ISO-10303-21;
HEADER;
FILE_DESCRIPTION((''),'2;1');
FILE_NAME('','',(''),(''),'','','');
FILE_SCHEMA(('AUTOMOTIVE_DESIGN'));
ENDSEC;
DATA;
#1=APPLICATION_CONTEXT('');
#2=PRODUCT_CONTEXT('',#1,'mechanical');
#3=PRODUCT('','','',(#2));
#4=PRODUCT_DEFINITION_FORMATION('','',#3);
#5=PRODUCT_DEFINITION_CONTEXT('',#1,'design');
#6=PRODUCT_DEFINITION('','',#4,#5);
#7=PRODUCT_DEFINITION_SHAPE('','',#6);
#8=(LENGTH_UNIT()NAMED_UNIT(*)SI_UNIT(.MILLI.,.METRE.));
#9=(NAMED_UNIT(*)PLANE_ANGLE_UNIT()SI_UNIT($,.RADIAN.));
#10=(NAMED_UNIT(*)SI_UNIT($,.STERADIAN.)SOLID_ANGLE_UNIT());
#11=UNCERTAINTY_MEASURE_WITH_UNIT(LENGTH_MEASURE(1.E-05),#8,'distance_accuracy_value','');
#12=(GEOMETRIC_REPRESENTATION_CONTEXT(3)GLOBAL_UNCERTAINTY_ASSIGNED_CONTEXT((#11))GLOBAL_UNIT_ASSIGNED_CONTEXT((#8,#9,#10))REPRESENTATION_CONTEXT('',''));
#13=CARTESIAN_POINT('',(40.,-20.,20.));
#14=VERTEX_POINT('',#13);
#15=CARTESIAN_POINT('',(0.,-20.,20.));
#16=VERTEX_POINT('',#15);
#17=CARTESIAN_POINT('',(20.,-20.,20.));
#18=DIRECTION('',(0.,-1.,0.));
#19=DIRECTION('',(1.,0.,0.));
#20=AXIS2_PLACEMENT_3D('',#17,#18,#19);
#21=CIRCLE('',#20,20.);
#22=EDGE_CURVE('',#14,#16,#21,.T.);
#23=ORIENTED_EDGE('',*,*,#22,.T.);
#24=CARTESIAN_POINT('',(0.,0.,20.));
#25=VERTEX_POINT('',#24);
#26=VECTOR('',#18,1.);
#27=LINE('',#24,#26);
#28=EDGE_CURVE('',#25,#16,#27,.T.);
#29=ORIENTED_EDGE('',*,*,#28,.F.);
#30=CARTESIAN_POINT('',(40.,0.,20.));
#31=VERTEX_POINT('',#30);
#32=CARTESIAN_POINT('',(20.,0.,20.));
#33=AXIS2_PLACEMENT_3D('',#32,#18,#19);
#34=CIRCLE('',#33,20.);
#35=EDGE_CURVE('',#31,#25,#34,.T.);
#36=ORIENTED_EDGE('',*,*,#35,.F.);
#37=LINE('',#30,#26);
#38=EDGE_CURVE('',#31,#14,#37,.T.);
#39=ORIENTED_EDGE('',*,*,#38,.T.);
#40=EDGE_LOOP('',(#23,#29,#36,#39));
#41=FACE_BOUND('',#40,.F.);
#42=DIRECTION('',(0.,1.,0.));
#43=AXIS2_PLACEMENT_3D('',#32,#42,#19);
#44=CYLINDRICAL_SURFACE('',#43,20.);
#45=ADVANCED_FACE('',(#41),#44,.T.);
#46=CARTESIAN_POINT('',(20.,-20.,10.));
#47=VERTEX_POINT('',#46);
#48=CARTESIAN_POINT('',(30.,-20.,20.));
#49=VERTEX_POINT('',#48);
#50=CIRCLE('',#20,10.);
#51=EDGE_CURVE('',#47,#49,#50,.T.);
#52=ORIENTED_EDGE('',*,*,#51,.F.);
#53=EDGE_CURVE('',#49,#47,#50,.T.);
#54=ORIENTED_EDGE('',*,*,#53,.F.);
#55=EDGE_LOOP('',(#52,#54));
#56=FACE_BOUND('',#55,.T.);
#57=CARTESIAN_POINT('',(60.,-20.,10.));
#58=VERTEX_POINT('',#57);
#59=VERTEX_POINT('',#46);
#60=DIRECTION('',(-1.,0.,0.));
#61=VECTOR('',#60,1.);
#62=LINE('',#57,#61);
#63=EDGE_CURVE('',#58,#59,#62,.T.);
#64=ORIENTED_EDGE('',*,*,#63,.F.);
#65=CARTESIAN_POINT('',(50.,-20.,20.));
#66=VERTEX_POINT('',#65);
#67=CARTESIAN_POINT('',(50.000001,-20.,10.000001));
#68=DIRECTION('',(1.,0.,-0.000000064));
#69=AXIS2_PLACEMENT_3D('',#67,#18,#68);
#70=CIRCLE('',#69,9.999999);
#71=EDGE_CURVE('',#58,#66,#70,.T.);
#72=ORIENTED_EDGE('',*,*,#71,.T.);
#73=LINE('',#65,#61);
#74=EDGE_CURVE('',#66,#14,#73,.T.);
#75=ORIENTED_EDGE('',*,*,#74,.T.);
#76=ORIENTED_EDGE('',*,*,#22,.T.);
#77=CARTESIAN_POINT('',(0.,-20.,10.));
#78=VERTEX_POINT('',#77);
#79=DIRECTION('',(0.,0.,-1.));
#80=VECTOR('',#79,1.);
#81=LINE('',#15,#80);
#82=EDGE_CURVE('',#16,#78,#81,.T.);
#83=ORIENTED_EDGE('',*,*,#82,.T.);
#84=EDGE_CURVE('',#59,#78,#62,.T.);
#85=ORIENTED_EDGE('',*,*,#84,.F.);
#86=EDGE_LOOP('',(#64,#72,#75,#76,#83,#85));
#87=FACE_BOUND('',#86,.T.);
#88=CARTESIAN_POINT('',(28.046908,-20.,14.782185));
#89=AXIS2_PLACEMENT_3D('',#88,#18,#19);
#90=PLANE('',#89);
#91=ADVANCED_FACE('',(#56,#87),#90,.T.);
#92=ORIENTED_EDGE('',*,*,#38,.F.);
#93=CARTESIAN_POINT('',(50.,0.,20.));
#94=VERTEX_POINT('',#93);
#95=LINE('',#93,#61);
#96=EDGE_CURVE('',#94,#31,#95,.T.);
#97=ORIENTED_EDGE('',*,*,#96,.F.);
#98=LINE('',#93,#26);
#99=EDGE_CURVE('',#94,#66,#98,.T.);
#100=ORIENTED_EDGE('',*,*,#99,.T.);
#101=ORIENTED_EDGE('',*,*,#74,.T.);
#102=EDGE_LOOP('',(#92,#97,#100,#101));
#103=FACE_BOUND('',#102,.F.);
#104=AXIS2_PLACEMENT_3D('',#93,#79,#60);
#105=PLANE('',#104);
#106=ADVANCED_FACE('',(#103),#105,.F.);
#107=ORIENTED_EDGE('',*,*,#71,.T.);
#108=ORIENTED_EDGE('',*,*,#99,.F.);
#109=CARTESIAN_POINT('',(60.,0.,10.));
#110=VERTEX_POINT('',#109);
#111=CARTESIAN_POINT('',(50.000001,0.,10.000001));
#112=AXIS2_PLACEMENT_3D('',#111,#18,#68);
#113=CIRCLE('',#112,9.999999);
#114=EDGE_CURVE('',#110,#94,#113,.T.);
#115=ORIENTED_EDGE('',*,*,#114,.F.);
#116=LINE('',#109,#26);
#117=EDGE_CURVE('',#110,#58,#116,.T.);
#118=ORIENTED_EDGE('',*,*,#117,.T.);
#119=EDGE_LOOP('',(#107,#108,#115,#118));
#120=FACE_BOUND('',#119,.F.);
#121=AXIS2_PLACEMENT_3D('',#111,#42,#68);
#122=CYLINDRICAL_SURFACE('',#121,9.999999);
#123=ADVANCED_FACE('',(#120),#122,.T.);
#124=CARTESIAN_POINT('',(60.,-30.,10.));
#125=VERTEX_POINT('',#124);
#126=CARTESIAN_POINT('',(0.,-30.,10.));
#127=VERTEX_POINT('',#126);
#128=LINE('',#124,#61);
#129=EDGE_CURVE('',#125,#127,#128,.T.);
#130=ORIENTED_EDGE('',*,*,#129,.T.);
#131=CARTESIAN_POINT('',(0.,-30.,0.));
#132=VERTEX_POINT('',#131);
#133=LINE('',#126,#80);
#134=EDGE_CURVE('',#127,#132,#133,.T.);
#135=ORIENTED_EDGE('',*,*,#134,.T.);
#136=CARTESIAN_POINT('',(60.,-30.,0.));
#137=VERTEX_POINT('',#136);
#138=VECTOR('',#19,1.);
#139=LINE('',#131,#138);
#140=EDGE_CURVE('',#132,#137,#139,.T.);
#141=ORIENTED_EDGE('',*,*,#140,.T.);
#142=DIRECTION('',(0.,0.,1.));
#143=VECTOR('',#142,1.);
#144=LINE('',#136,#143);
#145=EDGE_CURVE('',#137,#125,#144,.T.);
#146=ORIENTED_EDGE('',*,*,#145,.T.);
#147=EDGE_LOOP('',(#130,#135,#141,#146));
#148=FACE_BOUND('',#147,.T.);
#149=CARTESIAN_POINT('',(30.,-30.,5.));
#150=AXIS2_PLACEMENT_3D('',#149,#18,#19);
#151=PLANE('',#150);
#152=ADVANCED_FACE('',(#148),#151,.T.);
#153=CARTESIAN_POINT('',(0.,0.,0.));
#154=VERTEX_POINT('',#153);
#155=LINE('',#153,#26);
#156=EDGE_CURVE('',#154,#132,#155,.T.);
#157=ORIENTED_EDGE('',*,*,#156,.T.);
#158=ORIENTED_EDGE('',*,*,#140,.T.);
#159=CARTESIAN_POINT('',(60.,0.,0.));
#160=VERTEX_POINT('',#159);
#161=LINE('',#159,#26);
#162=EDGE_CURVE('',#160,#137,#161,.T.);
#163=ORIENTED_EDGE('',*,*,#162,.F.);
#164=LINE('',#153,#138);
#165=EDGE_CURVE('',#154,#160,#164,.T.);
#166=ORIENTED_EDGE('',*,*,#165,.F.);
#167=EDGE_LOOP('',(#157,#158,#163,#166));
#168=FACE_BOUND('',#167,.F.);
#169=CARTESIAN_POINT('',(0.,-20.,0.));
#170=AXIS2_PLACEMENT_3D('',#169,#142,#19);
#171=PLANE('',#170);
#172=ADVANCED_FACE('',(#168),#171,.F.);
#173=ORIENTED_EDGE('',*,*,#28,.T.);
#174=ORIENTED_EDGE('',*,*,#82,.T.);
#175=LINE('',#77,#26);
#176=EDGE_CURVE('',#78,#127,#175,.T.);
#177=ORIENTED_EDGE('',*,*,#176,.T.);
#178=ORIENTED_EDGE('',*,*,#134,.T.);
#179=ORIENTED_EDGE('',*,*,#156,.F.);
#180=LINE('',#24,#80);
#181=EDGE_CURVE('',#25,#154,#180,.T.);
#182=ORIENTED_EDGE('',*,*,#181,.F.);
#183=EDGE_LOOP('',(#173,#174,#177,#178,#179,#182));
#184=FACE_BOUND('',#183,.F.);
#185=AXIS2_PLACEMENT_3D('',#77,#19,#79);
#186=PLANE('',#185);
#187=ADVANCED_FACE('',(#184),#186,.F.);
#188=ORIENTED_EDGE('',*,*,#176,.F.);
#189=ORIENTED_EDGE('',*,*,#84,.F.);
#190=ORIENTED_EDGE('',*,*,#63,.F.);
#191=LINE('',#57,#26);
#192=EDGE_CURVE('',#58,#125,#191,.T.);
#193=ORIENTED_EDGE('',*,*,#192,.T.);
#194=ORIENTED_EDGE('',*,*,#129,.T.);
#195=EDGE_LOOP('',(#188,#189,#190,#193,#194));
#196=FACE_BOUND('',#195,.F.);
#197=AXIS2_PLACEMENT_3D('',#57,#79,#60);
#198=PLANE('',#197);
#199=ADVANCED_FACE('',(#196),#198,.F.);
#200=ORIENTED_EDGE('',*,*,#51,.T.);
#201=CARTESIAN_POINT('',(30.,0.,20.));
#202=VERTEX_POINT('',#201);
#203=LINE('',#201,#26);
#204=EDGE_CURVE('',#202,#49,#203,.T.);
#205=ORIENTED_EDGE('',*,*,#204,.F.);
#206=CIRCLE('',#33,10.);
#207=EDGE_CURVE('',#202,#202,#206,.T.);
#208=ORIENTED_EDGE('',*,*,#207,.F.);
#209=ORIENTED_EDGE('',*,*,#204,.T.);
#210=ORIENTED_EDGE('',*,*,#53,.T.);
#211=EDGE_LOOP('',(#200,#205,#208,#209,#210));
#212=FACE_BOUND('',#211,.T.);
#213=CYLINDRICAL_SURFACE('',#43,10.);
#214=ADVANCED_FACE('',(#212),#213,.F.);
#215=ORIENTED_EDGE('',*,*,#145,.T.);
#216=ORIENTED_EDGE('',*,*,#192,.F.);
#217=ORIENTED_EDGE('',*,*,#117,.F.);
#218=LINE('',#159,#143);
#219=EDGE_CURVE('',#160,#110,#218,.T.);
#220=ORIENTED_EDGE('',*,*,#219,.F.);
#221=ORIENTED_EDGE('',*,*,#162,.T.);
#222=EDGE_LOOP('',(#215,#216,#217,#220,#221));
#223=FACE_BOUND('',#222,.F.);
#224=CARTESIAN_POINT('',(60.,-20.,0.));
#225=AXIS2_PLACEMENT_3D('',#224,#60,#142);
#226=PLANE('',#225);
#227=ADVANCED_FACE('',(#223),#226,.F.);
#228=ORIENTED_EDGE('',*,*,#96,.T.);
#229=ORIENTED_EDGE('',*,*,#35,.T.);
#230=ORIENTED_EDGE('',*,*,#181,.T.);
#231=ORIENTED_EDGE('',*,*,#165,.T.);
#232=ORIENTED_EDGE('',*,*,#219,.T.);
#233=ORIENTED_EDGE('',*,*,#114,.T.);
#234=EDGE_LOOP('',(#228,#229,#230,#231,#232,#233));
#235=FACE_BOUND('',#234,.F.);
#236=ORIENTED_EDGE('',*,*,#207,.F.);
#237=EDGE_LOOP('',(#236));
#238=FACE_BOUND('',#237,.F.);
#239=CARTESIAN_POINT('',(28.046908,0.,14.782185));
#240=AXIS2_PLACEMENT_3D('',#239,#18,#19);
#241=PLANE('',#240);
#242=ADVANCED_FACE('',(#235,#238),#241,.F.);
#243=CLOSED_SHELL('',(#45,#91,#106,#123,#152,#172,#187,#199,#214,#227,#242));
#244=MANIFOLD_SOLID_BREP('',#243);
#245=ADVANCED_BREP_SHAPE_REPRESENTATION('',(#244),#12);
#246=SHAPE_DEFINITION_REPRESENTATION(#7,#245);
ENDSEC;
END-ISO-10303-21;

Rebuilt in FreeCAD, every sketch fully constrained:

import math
import FreeCAD as App
import Part
import Sketcher
from FreeCAD import Vector

doc = App.newDocument("Part")
body = doc.addObject("PartDesign::Body", "Body")

# Sketch on XZ plane
sketch1 = body.newObject("Sketcher::SketchObject", "Sketch")
sketch1.AttachmentSupport = (doc.getObject("XZ_Plane"), [""])
sketch1.MapMode = "FlatFace"
sketch1.addGeometry(Part.LineSegment(Vector(0, 20, 0), Vector(0, 0, 0)), False)
sketch1.addGeometry(Part.LineSegment(Vector(0, 0, 0), Vector(60, 0, 0)), False)
sketch1.addGeometry(Part.LineSegment(Vector(60, 0, 0), Vector(60, 10, 0)), False)
sketch1.addGeometry(Part.ArcOfCircle(Part.Circle(Vector(50, 10, 0), Vector(0, 0, 1), 10), math.radians(0), math.radians(90)), False)
sketch1.addGeometry(Part.LineSegment(Vector(50, 20, 0), Vector(40, 20, 0)), False)
sketch1.addGeometry(Part.ArcOfCircle(Part.Circle(Vector(20, 20, 0), Vector(0, 0, 1), 20), math.radians(0), math.radians(180)), False)
sketch1.addGeometry(Part.Circle(Vector(20, 20, 0), Vector(0, 0, 1), 10), False)
sketch1.addConstraint(Sketcher.Constraint("Coincident", 0, 2, 1, 1))
sketch1.addConstraint(Sketcher.Constraint("Coincident", 1, 2, 2, 1))
sketch1.addConstraint(Sketcher.Constraint("Tangent", 2, 2, 3, 1))
sketch1.addConstraint(Sketcher.Constraint("Tangent", 3, 2, 4, 1))
sketch1.addConstraint(Sketcher.Constraint("Coincident", 4, 2, 5, 1))
sketch1.addConstraint(Sketcher.Constraint("Tangent", 5, 2, 0, 1))
sketch1.addConstraint(Sketcher.Constraint("Vertical", 0))
sketch1.addConstraint(Sketcher.Constraint("Horizontal", 1))
sketch1.addConstraint(Sketcher.Constraint("Vertical", 2))
sketch1.addConstraint(Sketcher.Constraint("Horizontal", 4))
sketch1.addConstraint(Sketcher.Constraint("Coincident", 0, 2, -1, 1))
sketch1.addConstraint(Sketcher.Constraint("Coincident", 6, 3, 5, 3))
sketch1.addConstraint(Sketcher.Constraint("Equal", 3, 6))
sketch1.addConstraint(Sketcher.Constraint("Horizontal", 6, 3, 3, 2))
sketch1.addConstraint(Sketcher.Constraint("Equal", 4, 2))
sketch1.addConstraint(Sketcher.Constraint("Diameter", 6, 20.0))
sketch1.addConstraint(Sketcher.Constraint("Radius", 5, 20.0))
sketch1.addConstraint(Sketcher.Constraint("DistanceX", 1, 1, 1, 2, 60.0))
pad1 = body.newObject("PartDesign::Pad", "Pad")
pad1.Profile = sketch1
pad1.Length = 20

# Sketch on XZ plane
sketch2 = body.newObject("Sketcher::SketchObject", "Sketch001")
sketch2.AttachmentSupport = (doc.getObject("XZ_Plane"), [""])
sketch2.MapMode = "FlatFace"
sketch2.AttachmentOffset = App.Placement(Vector(0, 0, 20), App.Rotation())
sketch2.addGeometry(Part.LineSegment(Vector(0, 10, 0), Vector(0, 0, 0)), False)
sketch2.addGeometry(Part.LineSegment(Vector(0, 0, 0), Vector(60, 0, 0)), False)
sketch2.addGeometry(Part.LineSegment(Vector(60, 0, 0), Vector(60, 10, 0)), False)
sketch2.addGeometry(Part.LineSegment(Vector(60, 10, 0), Vector(0, 10, 0)), False)
sketch2.addConstraint(Sketcher.Constraint("Coincident", 0, 2, 1, 1))
sketch2.addConstraint(Sketcher.Constraint("Coincident", 1, 2, 2, 1))
sketch2.addConstraint(Sketcher.Constraint("Coincident", 2, 2, 3, 1))
sketch2.addConstraint(Sketcher.Constraint("Coincident", 3, 2, 0, 1))
sketch2.addConstraint(Sketcher.Constraint("Vertical", 0))
sketch2.addConstraint(Sketcher.Constraint("Horizontal", 1))
sketch2.addConstraint(Sketcher.Constraint("Vertical", 2))
sketch2.addConstraint(Sketcher.Constraint("Horizontal", 3))
sketch2.addConstraint(Sketcher.Constraint("Coincident", 0, 2, -1, 1))
sketch2.addConstraint(Sketcher.Constraint("DistanceX", 1, 1, 1, 2, 60.0))
sketch2.addConstraint(Sketcher.Constraint("DistanceY", 0, 2, 0, 1, 10.0))
pad2 = body.newObject("PartDesign::Pad", "Pad001")
pad2.Profile = sketch2
pad2.Length = 10

doc.recompute()
